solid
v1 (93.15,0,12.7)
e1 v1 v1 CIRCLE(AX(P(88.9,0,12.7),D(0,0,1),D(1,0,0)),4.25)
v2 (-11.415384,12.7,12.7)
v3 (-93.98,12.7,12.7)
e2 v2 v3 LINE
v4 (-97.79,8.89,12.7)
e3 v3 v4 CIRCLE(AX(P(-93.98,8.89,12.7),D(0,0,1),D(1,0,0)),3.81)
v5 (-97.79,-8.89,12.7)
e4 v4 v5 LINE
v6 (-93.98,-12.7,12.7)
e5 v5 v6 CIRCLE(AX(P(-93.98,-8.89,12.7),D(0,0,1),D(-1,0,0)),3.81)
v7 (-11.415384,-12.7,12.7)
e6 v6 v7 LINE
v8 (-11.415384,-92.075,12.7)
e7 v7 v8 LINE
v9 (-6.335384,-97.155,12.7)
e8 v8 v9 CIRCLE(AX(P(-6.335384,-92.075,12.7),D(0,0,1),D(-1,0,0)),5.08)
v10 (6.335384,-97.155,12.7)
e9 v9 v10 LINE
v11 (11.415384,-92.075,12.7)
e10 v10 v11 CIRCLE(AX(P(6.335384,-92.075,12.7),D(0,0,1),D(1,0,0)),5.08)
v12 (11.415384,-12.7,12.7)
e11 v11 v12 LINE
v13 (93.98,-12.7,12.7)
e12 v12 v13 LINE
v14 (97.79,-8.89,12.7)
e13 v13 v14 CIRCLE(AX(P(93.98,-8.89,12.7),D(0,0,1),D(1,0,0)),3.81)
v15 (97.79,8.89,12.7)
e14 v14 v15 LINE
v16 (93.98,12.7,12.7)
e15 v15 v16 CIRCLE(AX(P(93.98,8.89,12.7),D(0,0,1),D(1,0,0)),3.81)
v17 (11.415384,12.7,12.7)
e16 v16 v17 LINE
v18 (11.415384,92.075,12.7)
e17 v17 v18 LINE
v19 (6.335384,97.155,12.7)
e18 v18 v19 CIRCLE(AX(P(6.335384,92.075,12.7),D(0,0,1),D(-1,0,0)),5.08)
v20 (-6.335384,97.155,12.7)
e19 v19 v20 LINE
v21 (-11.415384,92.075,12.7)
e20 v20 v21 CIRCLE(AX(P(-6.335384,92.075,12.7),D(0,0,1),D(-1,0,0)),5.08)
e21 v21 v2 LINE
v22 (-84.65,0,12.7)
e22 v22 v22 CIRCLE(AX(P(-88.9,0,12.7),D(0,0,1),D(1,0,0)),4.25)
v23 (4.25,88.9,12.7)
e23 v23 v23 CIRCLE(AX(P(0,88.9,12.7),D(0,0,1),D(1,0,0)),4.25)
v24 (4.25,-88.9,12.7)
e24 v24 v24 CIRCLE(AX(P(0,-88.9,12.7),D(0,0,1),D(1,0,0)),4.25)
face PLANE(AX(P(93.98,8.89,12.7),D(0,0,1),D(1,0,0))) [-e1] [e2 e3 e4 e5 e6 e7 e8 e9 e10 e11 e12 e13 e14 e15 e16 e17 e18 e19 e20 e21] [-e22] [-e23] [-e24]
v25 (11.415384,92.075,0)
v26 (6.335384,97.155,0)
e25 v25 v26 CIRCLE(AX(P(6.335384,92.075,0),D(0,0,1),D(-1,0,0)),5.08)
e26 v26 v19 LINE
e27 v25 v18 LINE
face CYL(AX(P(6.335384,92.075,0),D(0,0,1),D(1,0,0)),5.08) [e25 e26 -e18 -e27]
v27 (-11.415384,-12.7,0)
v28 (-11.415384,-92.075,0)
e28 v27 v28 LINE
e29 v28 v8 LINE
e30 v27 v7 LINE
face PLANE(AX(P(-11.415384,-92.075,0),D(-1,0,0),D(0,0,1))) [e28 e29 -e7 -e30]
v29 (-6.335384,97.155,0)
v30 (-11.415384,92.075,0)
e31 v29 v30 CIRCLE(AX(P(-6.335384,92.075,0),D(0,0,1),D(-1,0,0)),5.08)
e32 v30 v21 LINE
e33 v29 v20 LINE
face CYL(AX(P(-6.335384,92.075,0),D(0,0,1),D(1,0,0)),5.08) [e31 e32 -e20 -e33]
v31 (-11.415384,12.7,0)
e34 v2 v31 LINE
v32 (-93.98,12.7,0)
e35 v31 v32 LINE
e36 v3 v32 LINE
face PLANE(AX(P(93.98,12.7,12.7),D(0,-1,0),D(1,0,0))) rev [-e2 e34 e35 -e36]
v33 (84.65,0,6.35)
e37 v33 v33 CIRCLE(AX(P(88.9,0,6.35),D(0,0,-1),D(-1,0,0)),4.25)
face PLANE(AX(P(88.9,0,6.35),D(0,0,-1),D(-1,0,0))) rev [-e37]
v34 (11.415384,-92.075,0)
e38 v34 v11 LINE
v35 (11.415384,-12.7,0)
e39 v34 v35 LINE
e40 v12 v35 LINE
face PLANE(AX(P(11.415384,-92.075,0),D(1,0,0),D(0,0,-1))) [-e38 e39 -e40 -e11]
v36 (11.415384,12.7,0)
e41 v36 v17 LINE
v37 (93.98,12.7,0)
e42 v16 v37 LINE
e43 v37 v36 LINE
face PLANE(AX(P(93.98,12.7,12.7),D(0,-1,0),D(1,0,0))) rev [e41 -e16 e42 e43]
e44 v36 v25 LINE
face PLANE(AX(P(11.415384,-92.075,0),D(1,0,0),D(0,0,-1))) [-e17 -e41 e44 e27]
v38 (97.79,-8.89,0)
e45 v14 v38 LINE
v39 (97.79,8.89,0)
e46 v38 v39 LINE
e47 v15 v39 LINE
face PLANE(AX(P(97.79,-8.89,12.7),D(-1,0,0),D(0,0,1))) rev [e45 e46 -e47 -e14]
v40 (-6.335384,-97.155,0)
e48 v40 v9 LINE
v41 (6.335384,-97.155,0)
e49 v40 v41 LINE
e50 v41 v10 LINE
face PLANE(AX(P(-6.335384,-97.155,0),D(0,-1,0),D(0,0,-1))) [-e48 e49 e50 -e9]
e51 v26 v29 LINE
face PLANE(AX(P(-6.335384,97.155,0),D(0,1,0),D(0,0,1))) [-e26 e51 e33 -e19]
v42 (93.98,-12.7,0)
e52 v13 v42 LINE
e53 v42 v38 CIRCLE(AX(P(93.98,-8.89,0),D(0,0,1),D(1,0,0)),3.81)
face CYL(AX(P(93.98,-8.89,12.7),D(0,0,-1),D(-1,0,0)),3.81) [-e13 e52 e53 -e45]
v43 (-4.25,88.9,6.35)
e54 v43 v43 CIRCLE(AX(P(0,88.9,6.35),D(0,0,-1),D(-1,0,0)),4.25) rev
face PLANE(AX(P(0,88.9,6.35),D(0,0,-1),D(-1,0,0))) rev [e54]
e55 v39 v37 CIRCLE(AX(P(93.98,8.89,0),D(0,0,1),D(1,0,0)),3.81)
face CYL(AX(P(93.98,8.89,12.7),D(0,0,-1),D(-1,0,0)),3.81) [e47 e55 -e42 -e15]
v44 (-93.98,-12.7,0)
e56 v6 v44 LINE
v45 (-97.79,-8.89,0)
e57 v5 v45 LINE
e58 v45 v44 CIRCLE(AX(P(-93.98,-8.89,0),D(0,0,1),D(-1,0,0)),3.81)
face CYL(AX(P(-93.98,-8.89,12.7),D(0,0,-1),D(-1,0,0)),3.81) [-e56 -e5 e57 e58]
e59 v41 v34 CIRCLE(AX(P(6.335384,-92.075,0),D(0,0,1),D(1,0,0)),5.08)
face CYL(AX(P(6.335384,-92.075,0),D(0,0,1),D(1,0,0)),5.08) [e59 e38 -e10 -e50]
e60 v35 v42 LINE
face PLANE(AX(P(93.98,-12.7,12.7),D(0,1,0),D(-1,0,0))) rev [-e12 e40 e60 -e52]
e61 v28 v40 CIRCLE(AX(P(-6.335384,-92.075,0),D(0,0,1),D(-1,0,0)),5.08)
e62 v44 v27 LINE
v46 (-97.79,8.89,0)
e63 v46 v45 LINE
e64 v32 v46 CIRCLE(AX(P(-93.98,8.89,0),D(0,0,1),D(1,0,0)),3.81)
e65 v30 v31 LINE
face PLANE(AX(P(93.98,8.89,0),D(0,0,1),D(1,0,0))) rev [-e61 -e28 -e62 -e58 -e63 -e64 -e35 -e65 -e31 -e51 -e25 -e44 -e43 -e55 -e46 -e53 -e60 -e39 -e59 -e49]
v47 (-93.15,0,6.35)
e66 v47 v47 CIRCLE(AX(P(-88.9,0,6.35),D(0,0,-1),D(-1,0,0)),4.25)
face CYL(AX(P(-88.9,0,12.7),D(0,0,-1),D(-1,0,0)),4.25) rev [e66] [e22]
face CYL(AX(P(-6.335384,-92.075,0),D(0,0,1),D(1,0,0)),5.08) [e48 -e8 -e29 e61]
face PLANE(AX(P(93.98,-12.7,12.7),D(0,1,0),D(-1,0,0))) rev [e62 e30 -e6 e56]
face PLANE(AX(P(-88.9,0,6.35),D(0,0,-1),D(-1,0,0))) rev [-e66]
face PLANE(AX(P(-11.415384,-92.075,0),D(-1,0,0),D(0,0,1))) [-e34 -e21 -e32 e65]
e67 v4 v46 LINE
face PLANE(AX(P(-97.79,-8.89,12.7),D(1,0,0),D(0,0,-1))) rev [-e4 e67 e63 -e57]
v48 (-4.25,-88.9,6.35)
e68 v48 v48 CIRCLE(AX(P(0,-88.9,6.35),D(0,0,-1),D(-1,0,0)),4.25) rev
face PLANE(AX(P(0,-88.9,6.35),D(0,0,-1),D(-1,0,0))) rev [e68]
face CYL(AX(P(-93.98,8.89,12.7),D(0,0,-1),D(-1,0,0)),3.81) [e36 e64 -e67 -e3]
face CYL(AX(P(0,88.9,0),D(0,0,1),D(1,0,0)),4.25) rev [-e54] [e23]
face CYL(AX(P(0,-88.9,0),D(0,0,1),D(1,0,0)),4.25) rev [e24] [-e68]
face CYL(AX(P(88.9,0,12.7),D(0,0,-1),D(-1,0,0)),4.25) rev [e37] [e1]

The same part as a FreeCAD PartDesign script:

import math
import FreeCAD as App
import Part
import Sketcher
Q = App.Units.Quantity

doc = App.newDocument("Part")
params = doc.addObject("Spreadsheet::Sheet", "Params")
for row, (alias, value) in enumerate([
    ("sketch1_radius", "0.15 in"),
    ("sketch1_width", "7.4 in"),
    ("sketch1_height", "0.7 in"),
    ("pad1_length", "0.5 in"),
    ("sketch2_radius", "0.2 in"),
    ("sketch2_height", "7.25 in"),
    ("pad3_length", "0.25 in"),
], start=1):
    params.set(f"A{row}", alias)
    params.set(f"B{row}", "=" + value)
    params.setAlias(f"B{row}", alias)

body = doc.addObject("PartDesign::Body", "Body")

sketch1 = body.newObject("Sketcher::SketchObject", "Sketch")
sketch1.AttachmentSupport = (doc.getObject("XY_Plane"), [""])
sketch1.MapMode = "FlatFace"
sketch1.addGeometry([
    Part.LineSegment(App.Vector(-94, -12.7, 0), App.Vector(94, -12.7, 0)),
    Part.ArcOfCircle(Part.Circle(App.Vector(94, -8.9, 0), App.Vector(0, 0, 1), 3.8), math.radians(-90), math.radians(0)),
    Part.LineSegment(App.Vector(97.8, -8.9, 0), App.Vector(97.8, 8.9, 0)),
    Part.ArcOfCircle(Part.Circle(App.Vector(94, 8.9, 0), App.Vector(0, 0, 1), 3.8), math.radians(0), math.radians(90)),
    Part.LineSegment(App.Vector(94, 12.7, 0), App.Vector(-94, 12.7, 0)),
    Part.ArcOfCircle(Part.Circle(App.Vector(-94, 8.9, 0), App.Vector(0, 0, 1), 3.8), math.radians(90), math.radians(180)),
    Part.LineSegment(App.Vector(-97.8, 8.9, 0), App.Vector(-97.8, -8.9, 0)),
    Part.ArcOfCircle(Part.Circle(App.Vector(-94, -8.9, 0), App.Vector(0, 0, 1), 3.8), math.radians(-180), math.radians(-90)),
    Part.Circle(App.Vector(88.9, 0, 0), App.Vector(0, 0, 1), 4.2),
    Part.Circle(App.Vector(-88.9, 0, 0), App.Vector(0, 0, 1), 4.2),
], False)
sketch1.addConstraint([
    Sketcher.Constraint("Tangent", 0, 2, 1, 1),
    Sketcher.Constraint("Tangent", 1, 2, 2, 1),
    Sketcher.Constraint("Tangent", 2, 2, 3, 1),
    Sketcher.Constraint("Tangent", 3, 2, 4, 1),
    Sketcher.Constraint("Tangent", 4, 2, 5, 1),
    Sketcher.Constraint("Tangent", 5, 2, 6, 1),
    Sketcher.Constraint("Tangent", 6, 2, 7, 1),
    Sketcher.Constraint("Tangent", 7, 2, 0, 1),
    Sketcher.Constraint("Horizontal", 0),
    Sketcher.Constraint("Vertical", 2),
    Sketcher.Constraint("Horizontal", 4),
    Sketcher.Constraint("Vertical", 6),
    Sketcher.Constraint("Equal", 1, 3),
    Sketcher.Constraint("Equal", 3, 5),
    Sketcher.Constraint("Equal", 5, 7),
    Sketcher.Constraint("Equal", 8, 9),
    Sketcher.Constraint("Symmetric", 1, 3, 5, 3, -1, 1),
    Sketcher.Constraint("Symmetric", 8, 3, 9, 3, -1, 1),
    Sketcher.Constraint("PointOnObject", 8, 3, -1),
    Sketcher.Constraint("Radius", 1, Q("0.15 in")),
    Sketcher.Constraint("DistanceX", 0, 1, 0, 2, Q("7.4 in")),
    Sketcher.Constraint("DistanceY", 2, 1, 2, 2, Q("0.7 in")),
    Sketcher.Constraint("DistanceX", 9, 3, 8, 3, Q("7 in")),
    Sketcher.Constraint("Diameter", 8, Q("8.5 mm")),
])
sketch1.setExpression("Constraints[19]", "Params.sketch1_radius")
sketch1.setExpression("Constraints[20]", "Params.sketch1_width")
sketch1.setExpression("Constraints[21]", "Params.sketch1_height")
pad1 = body.newObject("PartDesign::Pad", "Pad")
pad1.Profile = sketch1
pad1.setExpression("Length", "Params.pad1_length")

sketch2 = body.newObject("Sketcher::SketchObject", "Sketch001")
sketch2.AttachmentSupport = (doc.getObject("XY_Plane"), [""])
sketch2.MapMode = "FlatFace"
sketch2.AttachmentOffset = App.Placement(App.Vector(0, 0, 0.5 * 25.4), App.Rotation())
sketch2.addGeometry([
    Part.LineSegment(App.Vector(-6.3, -97.2, 0), App.Vector(6.3, -97.2, 0)),
    Part.ArcOfCircle(Part.Circle(App.Vector(6.3, -92.1, 0), App.Vector(0, 0, 1), 5.1), math.radians(-90), math.radians(0)),
    Part.LineSegment(App.Vector(11.4, -92.1, 0), App.Vector(11.4, 92.1, 0)),
    Part.ArcOfCircle(Part.Circle(App.Vector(6.3, 92.1, 0), App.Vector(0, 0, 1), 5.1), math.radians(0), math.radians(90)),
    Part.LineSegment(App.Vector(6.3, 97.2, 0), App.Vector(-6.3, 97.2, 0)),
    Part.ArcOfCircle(Part.Circle(App.Vector(-6.3, 92.1, 0), App.Vector(0, 0, 1), 5.1), math.radians(90), math.radians(180)),
    Part.LineSegment(App.Vector(-11.4, 92.1, 0), App.Vector(-11.4, -92.1, 0)),
    Part.ArcOfCircle(Part.Circle(App.Vector(-6.3, -92.1, 0), App.Vector(0, 0, 1), 5.1), math.radians(-180), math.radians(-90)),
    Part.Circle(App.Vector(0, -88.9, 0), App.Vector(0, 0, 1), 4.2),
    Part.Circle(App.Vector(0, 88.9, 0), App.Vector(0, 0, 1), 4.2),
], False)
sketch2.addConstraint([
    Sketcher.Constraint("Tangent", 0, 2, 1, 1),
    Sketcher.Constraint("Tangent", 1, 2, 2, 1),
    Sketcher.Constraint("Tangent", 2, 2, 3, 1),
    Sketcher.Constraint("Tangent", 3, 2, 4, 1),
    Sketcher.Constraint("Tangent", 4, 2, 5, 1),
    Sketcher.Constraint("Tangent", 5, 2, 6, 1),
    Sketcher.Constraint("Tangent", 6, 2, 7, 1),
    Sketcher.Constraint("Tangent", 7, 2, 0, 1),
    Sketcher.Constraint("Horizontal", 0),
    Sketcher.Constraint("Vertical", 2),
    Sketcher.Constraint("Horizontal", 4),
    Sketcher.Constraint("Vertical", 6),
    Sketcher.Constraint("Equal", 1, 3),
    Sketcher.Constraint("Equal", 3, 5),
    Sketcher.Constraint("Equal", 5, 7),
    Sketcher.Constraint("Equal", 8, 9),
    Sketcher.Constraint("Symmetric", 1, 3, 5, 3, -1, 1),
    Sketcher.Constraint("Symmetric", 8, 3, 9, 3, -1, 1),
    Sketcher.Constraint("PointOnObject", 8, 3, -2),
    Sketcher.Constraint("Radius", 1, Q("0.2 in")),
    Sketcher.Constraint("DistanceY", 8, 3, 9, 3, Q("7 in")),
    Sketcher.Constraint("DistanceY", 2, 1, 2, 2, Q("7.25 in")),
    Sketcher.Constraint("Diameter", 8, Q("8.5 mm")),
    Sketcher.Constraint("DistanceX", 0, 1, 0, 2, Q("12.670768 mm")),
])
sketch2.setExpression("Constraints[19]", "Params.sketch2_radius")
sketch2.setExpression("Constraints[21]", "Params.sketch2_height")
pad2 = body.newObject("PartDesign::Pad", "Pad001")
pad2.Profile = sketch2
pad2.Type = "UpToLast"
pad2.Reversed = True

sketch3 = body.newObject("Sketcher::SketchObject", "Sketch002")
sketch3.AttachmentSupport = (doc.getObject("XY_Plane"), [""])
sketch3.MapMode = "FlatFace"
sketch3.addGeometry([
    Part.Circle(App.Vector(0, 88.9, 0), App.Vector(0, 0, 1), 4.2),
    Part.Circle(App.Vector(88.9, 0, 0), App.Vector(0, 0, 1), 4.2),
    Part.Circle(App.Vector(0, -88.9, 0), App.Vector(0, 0, 1), 4.2),
    Part.Circle(App.Vector(-88.9, 0, 0), App.Vector(0, 0, 1), 4.2),
], False)
sketch3.addConstraint([
    Sketcher.Constraint("Equal", 0, 1),
    Sketcher.Constraint("Equal", 1, 2),
    Sketcher.Constraint("Equal", 2, 3),
    Sketcher.Constraint("Symmetric", 0, 3, 2, 3, -1, 1),
    Sketcher.Constraint("Symmetric", 1, 3, 3, 3, -1, 1),
    Sketcher.Constraint("PointOnObject", 0, 3, -2),
    Sketcher.Constraint("PointOnObject", 1, 3, -1),
    Sketcher.Constraint("DistanceY", 2, 3, 0, 3, Q("7 in")),
    Sketcher.Constraint("DistanceX", 3, 3, 1, 3, Q("7 in")),
    Sketcher.Constraint("Diameter", 0, Q("8.5 mm")),
])
pad3 = body.newObject("PartDesign::Pad", "Pad002")
pad3.Profile = sketch3
pad3.setExpression("Length", "Params.pad3_length")

doc.recompute()
